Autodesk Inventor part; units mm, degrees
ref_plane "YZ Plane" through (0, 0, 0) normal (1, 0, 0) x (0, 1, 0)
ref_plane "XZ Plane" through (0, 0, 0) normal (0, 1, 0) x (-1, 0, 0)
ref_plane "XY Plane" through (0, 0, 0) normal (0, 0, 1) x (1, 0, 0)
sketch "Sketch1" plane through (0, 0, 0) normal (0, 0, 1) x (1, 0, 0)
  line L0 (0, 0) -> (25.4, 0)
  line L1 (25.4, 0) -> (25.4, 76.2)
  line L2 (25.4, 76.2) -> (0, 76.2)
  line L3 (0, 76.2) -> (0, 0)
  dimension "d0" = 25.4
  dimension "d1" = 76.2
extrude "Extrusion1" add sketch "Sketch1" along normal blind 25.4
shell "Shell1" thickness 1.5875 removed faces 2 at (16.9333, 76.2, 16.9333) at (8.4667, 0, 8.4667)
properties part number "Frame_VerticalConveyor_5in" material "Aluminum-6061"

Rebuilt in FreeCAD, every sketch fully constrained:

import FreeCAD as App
import Part
import Sketcher
Q = App.Units.Quantity


def faces_at(feature, points):
    """Names of the faces that lie closest to the given points."""
    faces = feature.Shape.Faces
    near = lambda p: min(range(len(faces)), key=lambda i: faces[i].distToShape(Part.Vertex(*p))[0])
    return sorted({f"Face{near(p) + 1}" for p in points})

doc = App.newDocument("Part")
params = doc.addObject("Spreadsheet::Sheet", "Params")
for row, (alias, value) in enumerate([
    ("sketch1_width", "1 in"),
    ("sketch1_height", "3 in"),
    ("pad1_length", "1 in"),
    ("thickness_wall", "0.0625 in"),
], start=1):
    params.set(f"A{row}", alias)
    params.set(f"B{row}", "=" + value)
    params.setAlias(f"B{row}", alias)

body = doc.addObject("PartDesign::Body", "Body")

sketch1 = body.newObject("Sketcher::SketchObject", "Sketch")
sketch1.AttachmentSupport = (doc.getObject("XY_Plane"), [""])
sketch1.MapMode = "FlatFace"
sketch1.addGeometry([
    Part.LineSegment(App.Vector(0, 76, 0), App.Vector(0, 0, 0)),
    Part.LineSegment(App.Vector(0, 0, 0), App.Vector(25, 0, 0)),
    Part.LineSegment(App.Vector(25, 0, 0), App.Vector(25, 76, 0)),
    Part.LineSegment(App.Vector(25, 76, 0), App.Vector(0, 76, 0)),
], False)
sketch1.addConstraint([
    Sketcher.Constraint("Coincident", 0, 2, 1, 1),
    Sketcher.Constraint("Coincident", 1, 2, 2, 1),
    Sketcher.Constraint("Coincident", 2, 2, 3, 1),
    Sketcher.Constraint("Coincident", 3, 2, 0, 1),
    Sketcher.Constraint("Vertical", 0),
    Sketcher.Constraint("Horizontal", 1),
    Sketcher.Constraint("Vertical", 2),
    Sketcher.Constraint("Horizontal", 3),
    Sketcher.Constraint("Coincident", 0, 2, -1, 1),
    Sketcher.Constraint("DistanceX", 1, 1, 1, 2, Q("1 in")),
    Sketcher.Constraint("DistanceY", 0, 2, 0, 1, Q("3 in")),
])
sketch1.setExpression("Constraints[9]", "Params.sketch1_width")
sketch1.setExpression("Constraints[10]", "Params.sketch1_height")
pad1 = body.newObject("PartDesign::Pad", "Pad")
pad1.Profile = sketch1
pad1.setExpression("Length", "Params.pad1_length")
doc.recompute()

thickness = body.newObject("PartDesign::Thickness", "Thickness")
thickness.Base = (pad1, faces_at(pad1, [(16.933, 76.2, 16.933), (8.467, 0, 8.467)]))
thickness.setExpression("Value", "Params.thickness_wall")
thickness.Reversed = True
thickness.Join = "Intersection"

doc.recompute()
